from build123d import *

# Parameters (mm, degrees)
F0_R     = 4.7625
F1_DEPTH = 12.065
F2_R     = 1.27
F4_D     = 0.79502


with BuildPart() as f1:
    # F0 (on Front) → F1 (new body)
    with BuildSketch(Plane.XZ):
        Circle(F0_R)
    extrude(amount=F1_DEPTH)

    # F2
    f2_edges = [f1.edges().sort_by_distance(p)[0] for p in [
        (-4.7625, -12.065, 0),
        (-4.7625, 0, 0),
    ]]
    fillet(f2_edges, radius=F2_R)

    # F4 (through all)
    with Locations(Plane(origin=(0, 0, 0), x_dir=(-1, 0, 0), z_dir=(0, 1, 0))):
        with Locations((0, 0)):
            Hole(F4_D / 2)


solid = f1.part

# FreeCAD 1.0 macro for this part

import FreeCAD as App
import Part
import Sketcher
Q = App.Units.Quantity


def edges_at(feature, points):
    """Names of the edges that pass closest to the given points."""
    edges = feature.Shape.Edges
    near = lambda p: min(range(len(edges)), key=lambda i: edges[i].distToShape(Part.Vertex(*p))[0])
    return sorted({f"Edge{near(p) + 1}" for p in points})

doc = App.newDocument("Part")
params = doc.addObject("Spreadsheet::Sheet", "Params")
for row, (alias, value) in enumerate([
    ("sketch1_diameter", "0.375 in"),
    ("pad1_length", "0.475 in"),
    ("fillet_radius", "0.05 in"),
    ("hole_diameter", "0.0313 in"),
], start=1):
    params.set(f"A{row}", alias)
    params.set(f"B{row}", "=" + value)
    params.setAlias(f"B{row}", alias)

body = doc.addObject("PartDesign::Body", "Body")

sketch1 = body.newObject("Sketcher::SketchObject", "Sketch")
sketch1.AttachmentSupport = (doc.getObject("XZ_Plane"), [""])
sketch1.MapMode = "FlatFace"
sketch1.addGeometry(Part.Circle(App.Vector(0, 0, 0), App.Vector(0, 0, 1), 4.7625), False)
sketch1.addConstraint([
    Sketcher.Constraint("Coincident", 0, 3, -1, 1),
    Sketcher.Constraint("Diameter", 0, Q("0.375 in")),
])
sketch1.setExpression("Constraints[1]", "Params.sketch1_diameter")
pad1 = body.newObject("PartDesign::Pad", "Pad")
pad1.Profile = sketch1
pad1.setExpression("Length", "Params.pad1_length")
doc.recompute()

fillet = body.newObject("PartDesign::Fillet", "Fillet")
fillet.Base = (pad1, edges_at(pad1, [(-4.763, -12.065, 0), (-4.763, 0, 0)]))
fillet.setExpression("Radius", "Params.fillet_radius")

sketch2 = body.newObject("Sketcher::SketchObject", "Sketch001")
sketch2.AttachmentSupport = (doc.getObject("XZ_Plane"), [""])
sketch2.MapMode = "FlatFace"
sketch2.addGeometry(Part.Circle(App.Vector(0, 0, 0), App.Vector(0, 0, 1), 0.39751), False)
sketch2.addConstraint([
    Sketcher.Constraint("Coincident", 0, 3, -1, 1),
    Sketcher.Constraint("Diameter", 0, Q("0.0313 in")),
])
doc.recompute()
hole = body.newObject("PartDesign::Hole", "Hole")
hole.Profile = sketch2
hole.ThreadType = "None"
hole.setExpression("Diameter", "Params.hole_diameter")
hole.DepthType = "ThroughAll"
hole.Reversed = True

doc.recompute()
